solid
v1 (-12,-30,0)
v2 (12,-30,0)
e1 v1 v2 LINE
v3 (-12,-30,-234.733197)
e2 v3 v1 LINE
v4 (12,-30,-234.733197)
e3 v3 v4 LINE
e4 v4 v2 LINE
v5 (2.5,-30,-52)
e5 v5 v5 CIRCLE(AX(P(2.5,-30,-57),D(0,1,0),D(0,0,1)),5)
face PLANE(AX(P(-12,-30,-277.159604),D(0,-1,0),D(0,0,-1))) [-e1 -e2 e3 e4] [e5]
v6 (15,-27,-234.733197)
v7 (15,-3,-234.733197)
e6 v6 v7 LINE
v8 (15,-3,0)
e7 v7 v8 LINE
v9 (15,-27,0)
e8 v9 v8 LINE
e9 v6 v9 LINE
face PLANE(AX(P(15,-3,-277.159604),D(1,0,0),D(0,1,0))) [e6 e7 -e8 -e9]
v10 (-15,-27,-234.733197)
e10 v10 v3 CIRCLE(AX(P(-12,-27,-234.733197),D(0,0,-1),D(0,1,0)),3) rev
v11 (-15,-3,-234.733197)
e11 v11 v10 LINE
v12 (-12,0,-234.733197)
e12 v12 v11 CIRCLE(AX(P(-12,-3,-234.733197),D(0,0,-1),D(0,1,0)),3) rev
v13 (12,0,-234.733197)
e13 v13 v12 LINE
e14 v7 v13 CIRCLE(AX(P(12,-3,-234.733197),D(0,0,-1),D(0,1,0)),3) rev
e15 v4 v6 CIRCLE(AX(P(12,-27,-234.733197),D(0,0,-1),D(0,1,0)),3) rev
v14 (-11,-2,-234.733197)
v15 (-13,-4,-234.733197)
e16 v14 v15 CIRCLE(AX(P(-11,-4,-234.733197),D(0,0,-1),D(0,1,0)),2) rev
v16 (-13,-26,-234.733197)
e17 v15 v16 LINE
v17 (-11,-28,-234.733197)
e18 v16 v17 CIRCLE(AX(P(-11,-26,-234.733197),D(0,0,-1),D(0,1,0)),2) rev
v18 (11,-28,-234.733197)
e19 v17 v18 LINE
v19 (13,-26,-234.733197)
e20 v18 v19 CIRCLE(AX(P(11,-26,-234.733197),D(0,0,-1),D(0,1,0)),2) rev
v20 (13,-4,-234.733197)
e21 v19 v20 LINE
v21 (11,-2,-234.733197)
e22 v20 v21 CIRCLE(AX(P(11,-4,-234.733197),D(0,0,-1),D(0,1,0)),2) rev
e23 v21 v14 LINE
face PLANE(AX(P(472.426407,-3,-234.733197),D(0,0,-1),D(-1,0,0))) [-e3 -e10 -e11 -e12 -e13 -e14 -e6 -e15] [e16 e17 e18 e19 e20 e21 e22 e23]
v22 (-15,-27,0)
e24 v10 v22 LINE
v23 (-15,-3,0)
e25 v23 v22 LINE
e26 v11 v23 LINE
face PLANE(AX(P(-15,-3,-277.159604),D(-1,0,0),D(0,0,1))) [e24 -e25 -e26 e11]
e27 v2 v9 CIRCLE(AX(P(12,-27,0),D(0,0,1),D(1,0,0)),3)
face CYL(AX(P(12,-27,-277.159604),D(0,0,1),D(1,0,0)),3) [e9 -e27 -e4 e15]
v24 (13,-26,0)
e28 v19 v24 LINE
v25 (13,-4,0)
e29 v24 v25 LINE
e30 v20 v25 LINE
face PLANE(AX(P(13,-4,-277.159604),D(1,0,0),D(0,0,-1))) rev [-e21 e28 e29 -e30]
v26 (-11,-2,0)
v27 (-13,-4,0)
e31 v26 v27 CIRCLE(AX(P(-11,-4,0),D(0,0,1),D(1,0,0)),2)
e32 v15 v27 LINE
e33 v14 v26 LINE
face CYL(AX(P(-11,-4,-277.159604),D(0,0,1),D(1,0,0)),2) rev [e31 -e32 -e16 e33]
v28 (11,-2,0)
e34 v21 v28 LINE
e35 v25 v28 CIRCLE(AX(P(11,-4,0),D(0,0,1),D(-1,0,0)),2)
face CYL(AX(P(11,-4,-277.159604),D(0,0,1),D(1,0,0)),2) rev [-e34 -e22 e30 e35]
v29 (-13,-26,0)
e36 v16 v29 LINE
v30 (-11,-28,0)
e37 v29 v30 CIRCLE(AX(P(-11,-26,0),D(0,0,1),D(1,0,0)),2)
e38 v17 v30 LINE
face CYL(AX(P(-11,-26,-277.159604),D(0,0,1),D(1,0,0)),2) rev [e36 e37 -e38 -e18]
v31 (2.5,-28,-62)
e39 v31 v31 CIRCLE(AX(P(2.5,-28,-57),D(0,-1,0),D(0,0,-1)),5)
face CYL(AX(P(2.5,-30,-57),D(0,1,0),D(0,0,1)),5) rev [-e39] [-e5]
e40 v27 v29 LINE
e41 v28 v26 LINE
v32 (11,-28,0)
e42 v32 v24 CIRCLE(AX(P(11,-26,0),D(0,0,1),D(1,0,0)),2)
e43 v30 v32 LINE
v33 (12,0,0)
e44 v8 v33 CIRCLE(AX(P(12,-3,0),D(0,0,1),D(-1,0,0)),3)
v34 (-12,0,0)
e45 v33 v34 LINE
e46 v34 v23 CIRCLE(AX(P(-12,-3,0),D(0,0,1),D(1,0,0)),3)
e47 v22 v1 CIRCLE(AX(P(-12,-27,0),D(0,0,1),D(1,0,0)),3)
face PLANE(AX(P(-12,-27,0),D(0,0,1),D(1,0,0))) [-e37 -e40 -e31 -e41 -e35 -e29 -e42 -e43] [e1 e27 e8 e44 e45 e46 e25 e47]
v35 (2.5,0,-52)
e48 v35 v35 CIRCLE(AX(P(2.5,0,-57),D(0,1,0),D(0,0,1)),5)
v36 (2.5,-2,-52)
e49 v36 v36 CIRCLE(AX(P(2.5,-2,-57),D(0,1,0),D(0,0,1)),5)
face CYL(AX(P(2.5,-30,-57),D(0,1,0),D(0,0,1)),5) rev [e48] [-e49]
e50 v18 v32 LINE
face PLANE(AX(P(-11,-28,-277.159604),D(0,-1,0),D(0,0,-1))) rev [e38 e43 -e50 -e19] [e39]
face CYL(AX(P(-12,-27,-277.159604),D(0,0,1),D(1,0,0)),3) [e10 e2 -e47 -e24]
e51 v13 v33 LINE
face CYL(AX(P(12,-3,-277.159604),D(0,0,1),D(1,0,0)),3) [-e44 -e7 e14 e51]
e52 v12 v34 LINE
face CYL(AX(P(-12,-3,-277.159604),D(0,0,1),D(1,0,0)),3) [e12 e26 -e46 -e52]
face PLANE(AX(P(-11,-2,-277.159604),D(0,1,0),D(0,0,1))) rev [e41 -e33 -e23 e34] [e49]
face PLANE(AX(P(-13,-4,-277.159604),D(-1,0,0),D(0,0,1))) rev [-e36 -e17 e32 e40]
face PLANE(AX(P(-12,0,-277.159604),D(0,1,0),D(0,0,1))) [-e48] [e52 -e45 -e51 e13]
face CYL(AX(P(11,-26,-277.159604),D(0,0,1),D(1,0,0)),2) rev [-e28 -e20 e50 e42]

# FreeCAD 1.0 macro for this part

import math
import FreeCAD as App
import Part
import Sketcher
Q = App.Units.Quantity

doc = App.newDocument("Part")
body = doc.addObject("PartDesign::Body", "Body")

# Sketch on XY plane
sketch1 = doc.addObject("Sketcher::SketchObject", "Sketch")
body.addObject(sketch1)
sketch1.AttachmentSupport = (doc.XY_Plane, [""])
sketch1.MapMode = "FlatFace"
sketch1.addGeometry([
    Part.LineSegment(App.Vector(12, 0, 0), App.Vector(-12, 0, 0)),  # 0
    Part.ArcOfCircle(Part.Circle(App.Vector(-12, -3, 0), App.Vector(0, 0, 1), 3), math.radians(90), math.radians(180)),  # 1
    Part.LineSegment(App.Vector(-15, -3, 0), App.Vector(-15, -27, 0)),  # 2
    Part.ArcOfCircle(Part.Circle(App.Vector(-12, -27, 0), App.Vector(0, 0, 1), 3), math.radians(180), math.radians(270)),  # 3
    Part.LineSegment(App.Vector(-12, -30, 0), App.Vector(12, -30, 0)),  # 4
    Part.ArcOfCircle(Part.Circle(App.Vector(12, -27, 0), App.Vector(0, 0, 1), 3), math.radians(-90), math.radians(0)),  # 5
    Part.LineSegment(App.Vector(15, -27, 0), App.Vector(15, -3, 0)),  # 6
    Part.ArcOfCircle(Part.Circle(App.Vector(12, -3, 0), App.Vector(0, 0, 1), 3), math.radians(0), math.radians(90)),  # 7
    Part.LineSegment(App.Vector(-11, -2, 0), App.Vector(11, -2, 0)),  # 8
    Part.ArcOfCircle(Part.Circle(App.Vector(11, -4, 0), App.Vector(0, 0, 1), 2), math.radians(0), math.radians(90)),  # 9
    Part.LineSegment(App.Vector(13, -4, 0), App.Vector(13, -26, 0)),  # 10
    Part.ArcOfCircle(Part.Circle(App.Vector(11, -26, 0), App.Vector(0, 0, 1), 2), math.radians(-90), math.radians(0)),  # 11
    Part.LineSegment(App.Vector(11, -28, 0), App.Vector(-11, -28, 0)),  # 12
    Part.ArcOfCircle(Part.Circle(App.Vector(-11, -26, 0), App.Vector(0, 0, 1), 2), math.radians(-180), math.radians(-90)),  # 13
    Part.LineSegment(App.Vector(-13, -26, 0), App.Vector(-13, -4, 0)),  # 14
    Part.ArcOfCircle(Part.Circle(App.Vector(-11, -4, 0), App.Vector(0, 0, 1), 2), math.radians(90), math.radians(180)),  # 15
], False)
sketch1.addConstraint([
    Sketcher.Constraint("Tangent", 0, 2, 1, 1),
    Sketcher.Constraint("Tangent", 1, 2, 2, 1),
    Sketcher.Constraint("Tangent", 2, 2, 3, 1),
    Sketcher.Constraint("Tangent", 3, 2, 4, 1),
    Sketcher.Constraint("Tangent", 4, 2, 5, 1),
    Sketcher.Constraint("Tangent", 5, 2, 6, 1),
    Sketcher.Constraint("Tangent", 6, 2, 7, 1),
    Sketcher.Constraint("Tangent", 7, 2, 0, 1),
    Sketcher.Constraint("Tangent", 8, 2, 9, 2),
    Sketcher.Constraint("Tangent", 9, 1, 10, 1),
    Sketcher.Constraint("Tangent", 10, 2, 11, 2),
    Sketcher.Constraint("Tangent", 11, 1, 12, 1),
    Sketcher.Constraint("Tangent", 12, 2, 13, 2),
    Sketcher.Constraint("Tangent", 13, 1, 14, 1),
    Sketcher.Constraint("Tangent", 14, 2, 15, 2),
    Sketcher.Constraint("Tangent", 15, 1, 8, 1),
    Sketcher.Constraint("Horizontal", 0),
    Sketcher.Constraint("Vertical", 2),
    Sketcher.Constraint("Horizontal", 4),
    Sketcher.Constraint("Vertical", 6),
    Sketcher.Constraint("Horizontal", 8),
    Sketcher.Constraint("Vertical", 10),
    Sketcher.Constraint("Horizontal", 12),
    Sketcher.Constraint("Vertical", 14),
    Sketcher.Constraint("Equal", 1, 3),
    Sketcher.Constraint("Equal", 3, 5),
    Sketcher.Constraint("Equal", 5, 7),
    Sketcher.Constraint("Equal", 9, 11),
    Sketcher.Constraint("Equal", 11, 13),
    Sketcher.Constraint("Equal", 13, 15),
    Sketcher.Constraint("Symmetric", 0, 2, 7, 2, -1, 1),
    Sketcher.Constraint("Equal", 4, 2),
    Sketcher.Constraint("Equal", 12, 10),
    Sketcher.Constraint("Radius", 1, Q("3 mm")),
    Sketcher.Constraint("Radius", 9, Q("2 mm")),
    Sketcher.Constraint("DistanceX", 0, 2, 0, 1, Q("24 mm")),
    Sketcher.Constraint("DistanceX", 8, 1, 8, 2, Q("22 mm")),
    Sketcher.Constraint("DistanceX", -1, 1, 9, 3, Q("11 mm")),
    Sketcher.Constraint("DistanceY", 9, 3, -1, 1, Q("4 mm")),
])
pad1 = doc.addObject("PartDesign::Pad", "Pad")
body.addObject(pad1)
pad1.Profile = sketch1
pad1.Length = 234.733197
pad1.Reversed = True

# Sketch on XZ plane
sketch2 = doc.addObject("Sketcher::SketchObject", "Sketch001")
body.addObject(sketch2)
sketch2.AttachmentSupport = (doc.XZ_Plane, [""])
sketch2.MapMode = "FlatFace"
sketch2.addGeometry(Part.Circle(App.Vector(2, -57, 0), App.Vector(0, 0, 1), 5), False)
sketch2.addConstraint([
    Sketcher.Constraint("Diameter", 0, Q("10 mm")),
    Sketcher.Constraint("DistanceY", 0, 3, -1, 1, Q("57 mm")),
    Sketcher.Constraint("DistanceX", -1, 1, 0, 3, Q("2.5 mm")),
])
pocket1 = doc.addObject("PartDesign::Pocket", "Pocket")
body.addObject(pocket1)
pocket1.Profile = sketch2
pocket1.Type = "ThroughAll"
pocket1.Reversed = True

doc.recompute()
